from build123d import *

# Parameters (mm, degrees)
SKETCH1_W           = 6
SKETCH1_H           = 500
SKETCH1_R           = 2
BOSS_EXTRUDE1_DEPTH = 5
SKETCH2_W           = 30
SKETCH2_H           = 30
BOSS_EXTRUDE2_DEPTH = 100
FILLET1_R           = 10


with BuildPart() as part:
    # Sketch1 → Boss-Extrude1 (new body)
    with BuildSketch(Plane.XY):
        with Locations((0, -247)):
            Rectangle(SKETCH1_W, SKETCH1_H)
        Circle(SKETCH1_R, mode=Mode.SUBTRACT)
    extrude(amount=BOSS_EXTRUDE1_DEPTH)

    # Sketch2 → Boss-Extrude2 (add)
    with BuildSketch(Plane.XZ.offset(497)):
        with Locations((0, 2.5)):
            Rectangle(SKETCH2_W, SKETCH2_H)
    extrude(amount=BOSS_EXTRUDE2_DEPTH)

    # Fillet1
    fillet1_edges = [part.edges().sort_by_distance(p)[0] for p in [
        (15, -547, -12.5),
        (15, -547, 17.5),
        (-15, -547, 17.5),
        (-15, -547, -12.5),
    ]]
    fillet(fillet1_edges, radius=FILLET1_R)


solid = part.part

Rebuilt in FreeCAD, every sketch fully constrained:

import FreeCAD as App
import Part
import Sketcher
from FreeCAD import Vector


def edges_at(feature, points):
    """Names of the edges that pass closest to the given points."""
    edges = feature.Shape.Edges
    near = lambda p: min(range(len(edges)), key=lambda i: edges[i].distToShape(Part.Vertex(*p))[0])
    return sorted({f"Edge{near(p) + 1}" for p in points})


def add_polygon(sketch, points):
    """Adds a closed chain of lines whose ends are joined by coincident constraints."""
    first, n = sketch.GeometryCount, len(points)
    for a, b in zip(points, points[1:] + points[:1]):
        sketch.addGeometry(Part.LineSegment(App.Vector(*a, 0), App.Vector(*b, 0)), False)
    for i in range(n):
        sketch.addConstraint(Sketcher.Constraint("Coincident", first + i, 2, first + (i + 1) % n, 1))

doc = App.newDocument("Part")
body = doc.addObject("PartDesign::Body", "Body")

# Sketch on XY plane
sketch1 = body.newObject("Sketcher::SketchObject", "Sketch")
sketch1.AttachmentSupport = (doc.getObject("XY_Plane"), [""])
sketch1.MapMode = "FlatFace"
add_polygon(sketch1, [(-3, 3), (-3, -497), (3, -497), (3, 3)])  # lines 0-3
sketch1.addGeometry(Part.Circle(Vector(0, 0, 0), Vector(0, 0, 1), 2), False)  # 4
sketch1.addConstraint(Sketcher.Constraint("Vertical", 0))
sketch1.addConstraint(Sketcher.Constraint("Horizontal", 1))
sketch1.addConstraint(Sketcher.Constraint("Vertical", 2))
sketch1.addConstraint(Sketcher.Constraint("Horizontal", 3))
sketch1.addConstraint(Sketcher.Constraint("Coincident", 4, 3, -1, 1))
sketch1.addConstraint(Sketcher.Constraint("Diameter", 4, 4.0))
sketch1.addConstraint(Sketcher.Constraint("DistanceX", 1, 1, 1, 2, 6.0))
sketch1.addConstraint(Sketcher.Constraint("DistanceY", 0, 2, 0, 1, 500.0))
sketch1.addConstraint(Sketcher.Constraint("DistanceX", 0, 2, -1, 1, 3.0))
sketch1.addConstraint(Sketcher.Constraint("DistanceY", 0, 2, -1, 1, 497.0))
pad1 = body.newObject("PartDesign::Pad", "Pad")
pad1.Profile = sketch1
pad1.Length = 5

# Sketch on XZ plane
sketch2 = body.newObject("Sketcher::SketchObject", "Sketch001")
sketch2.AttachmentSupport = (doc.getObject("XZ_Plane"), [""])
sketch2.MapMode = "FlatFace"
sketch2.AttachmentOffset = App.Placement(Vector(0, 0, 497), App.Rotation())
add_polygon(sketch2, [(-15, 18), (-15, -12), (15, -12), (15, 18)])  # lines 0-3
sketch2.addConstraint(Sketcher.Constraint("Vertical", 0))
sketch2.addConstraint(Sketcher.Constraint("Horizontal", 1))
sketch2.addConstraint(Sketcher.Constraint("Vertical", 2))
sketch2.addConstraint(Sketcher.Constraint("Horizontal", 3))
sketch2.addConstraint(Sketcher.Constraint("Equal", 3, 0))
sketch2.addConstraint(Sketcher.Constraint("DistanceX", 1, 1, 1, 2, 30.0))
sketch2.addConstraint(Sketcher.Constraint("DistanceX", 0, 2, -1, 1, 15.0))
sketch2.addConstraint(Sketcher.Constraint("DistanceY", 0, 2, -1, 1, 12.5))
pad2 = body.newObject("PartDesign::Pad", "Pad001")
pad2.Profile = sketch2
pad2.Length = 100
doc.recompute()

fillet = body.newObject("PartDesign::Fillet", "Fillet")
fillet.Base = (pad2, edges_at(pad2, [
    (15, -547, -12.5),
    (15, -547, 17.5),
    (-15, -547, 17.5),
    (-15, -547, -12.5),
]))
fillet.Radius = 10

doc.recompute()
